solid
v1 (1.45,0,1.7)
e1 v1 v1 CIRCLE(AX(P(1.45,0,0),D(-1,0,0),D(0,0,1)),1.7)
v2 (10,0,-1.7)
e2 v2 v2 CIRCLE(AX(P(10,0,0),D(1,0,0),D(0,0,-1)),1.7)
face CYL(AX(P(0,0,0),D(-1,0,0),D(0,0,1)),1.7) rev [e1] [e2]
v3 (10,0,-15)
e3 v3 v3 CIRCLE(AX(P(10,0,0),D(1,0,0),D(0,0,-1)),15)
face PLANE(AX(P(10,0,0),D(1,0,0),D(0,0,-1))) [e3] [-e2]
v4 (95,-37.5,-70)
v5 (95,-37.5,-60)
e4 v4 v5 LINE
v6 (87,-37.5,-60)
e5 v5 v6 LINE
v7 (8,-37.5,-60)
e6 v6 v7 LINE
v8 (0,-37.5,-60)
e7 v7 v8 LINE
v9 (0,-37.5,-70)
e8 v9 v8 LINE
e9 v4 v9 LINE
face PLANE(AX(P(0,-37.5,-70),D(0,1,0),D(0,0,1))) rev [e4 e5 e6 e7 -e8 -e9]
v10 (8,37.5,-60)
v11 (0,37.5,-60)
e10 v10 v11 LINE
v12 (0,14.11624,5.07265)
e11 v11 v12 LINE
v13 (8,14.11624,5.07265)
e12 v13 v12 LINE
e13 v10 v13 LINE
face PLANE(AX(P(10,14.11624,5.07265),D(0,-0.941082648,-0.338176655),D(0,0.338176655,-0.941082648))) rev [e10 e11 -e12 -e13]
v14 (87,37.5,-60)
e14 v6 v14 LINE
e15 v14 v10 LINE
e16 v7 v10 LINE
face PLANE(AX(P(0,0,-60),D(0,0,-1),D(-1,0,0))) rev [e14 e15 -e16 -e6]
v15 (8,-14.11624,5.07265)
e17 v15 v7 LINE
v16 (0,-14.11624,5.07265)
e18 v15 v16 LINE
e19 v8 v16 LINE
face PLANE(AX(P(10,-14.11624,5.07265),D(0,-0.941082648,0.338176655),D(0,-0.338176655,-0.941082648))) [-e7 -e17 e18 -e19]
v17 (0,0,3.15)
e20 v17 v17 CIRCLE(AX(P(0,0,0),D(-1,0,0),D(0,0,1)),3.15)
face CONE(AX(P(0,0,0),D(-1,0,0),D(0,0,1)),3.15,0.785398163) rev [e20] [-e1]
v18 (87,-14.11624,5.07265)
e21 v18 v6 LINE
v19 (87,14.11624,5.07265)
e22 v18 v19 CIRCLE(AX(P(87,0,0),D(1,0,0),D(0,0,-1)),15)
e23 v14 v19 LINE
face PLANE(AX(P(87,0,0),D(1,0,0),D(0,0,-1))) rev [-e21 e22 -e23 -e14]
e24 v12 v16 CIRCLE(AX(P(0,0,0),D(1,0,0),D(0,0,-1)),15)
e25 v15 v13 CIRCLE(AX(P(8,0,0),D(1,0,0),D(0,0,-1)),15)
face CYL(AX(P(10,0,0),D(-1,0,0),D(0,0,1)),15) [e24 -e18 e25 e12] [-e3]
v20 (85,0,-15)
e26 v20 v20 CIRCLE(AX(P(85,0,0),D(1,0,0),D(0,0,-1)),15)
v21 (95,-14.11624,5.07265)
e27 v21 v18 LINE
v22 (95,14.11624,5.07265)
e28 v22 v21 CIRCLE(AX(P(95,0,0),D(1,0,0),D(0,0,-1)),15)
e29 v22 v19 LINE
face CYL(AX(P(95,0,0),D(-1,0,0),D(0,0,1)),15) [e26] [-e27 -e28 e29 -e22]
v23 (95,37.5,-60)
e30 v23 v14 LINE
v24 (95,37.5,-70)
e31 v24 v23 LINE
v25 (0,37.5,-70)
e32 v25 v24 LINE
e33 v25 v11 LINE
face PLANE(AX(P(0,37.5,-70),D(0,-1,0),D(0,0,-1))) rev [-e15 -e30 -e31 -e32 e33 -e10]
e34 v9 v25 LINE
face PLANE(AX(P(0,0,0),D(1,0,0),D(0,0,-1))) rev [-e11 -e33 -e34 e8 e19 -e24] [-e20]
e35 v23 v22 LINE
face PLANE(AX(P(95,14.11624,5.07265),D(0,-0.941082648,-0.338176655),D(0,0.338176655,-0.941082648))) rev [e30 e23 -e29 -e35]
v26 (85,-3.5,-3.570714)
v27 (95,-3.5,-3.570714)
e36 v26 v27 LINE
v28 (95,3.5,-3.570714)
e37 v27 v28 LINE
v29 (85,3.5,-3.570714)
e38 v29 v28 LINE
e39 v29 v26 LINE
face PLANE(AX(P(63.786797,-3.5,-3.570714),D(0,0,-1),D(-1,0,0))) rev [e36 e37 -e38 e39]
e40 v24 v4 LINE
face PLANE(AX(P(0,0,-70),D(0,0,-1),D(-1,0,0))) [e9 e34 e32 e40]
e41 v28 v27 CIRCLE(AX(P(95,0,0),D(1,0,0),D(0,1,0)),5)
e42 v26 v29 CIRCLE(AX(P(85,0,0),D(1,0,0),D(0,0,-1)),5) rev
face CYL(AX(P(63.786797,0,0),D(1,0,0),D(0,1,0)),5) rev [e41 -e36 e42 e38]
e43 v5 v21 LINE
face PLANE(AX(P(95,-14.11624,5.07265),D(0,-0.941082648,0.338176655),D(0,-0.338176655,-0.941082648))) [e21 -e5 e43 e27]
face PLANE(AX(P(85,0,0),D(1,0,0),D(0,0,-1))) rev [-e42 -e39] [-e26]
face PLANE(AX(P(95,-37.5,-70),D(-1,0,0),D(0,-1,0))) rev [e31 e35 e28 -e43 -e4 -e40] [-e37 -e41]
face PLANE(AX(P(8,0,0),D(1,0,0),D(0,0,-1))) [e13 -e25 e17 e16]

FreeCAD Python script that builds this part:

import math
import FreeCAD as App
import Part
import Sketcher

V = App.Vector


def add_polygon(sketch, points):
    """Adds a closed chain of lines whose ends are joined by coincident constraints."""
    first, n = sketch.GeometryCount, len(points)
    for a, b in zip(points, points[1:] + points[:1]):
        sketch.addGeometry(Part.LineSegment(App.Vector(*a, 0), App.Vector(*b, 0)), False)
    for i in range(n):
        sketch.addConstraint(Sketcher.Constraint("Coincident", first + i, 2, first + (i + 1) % n, 1))

doc = App.newDocument("Part")
body = doc.addObject("PartDesign::Body", "Body")

# Sketch on YZ plane
sketch1 = doc.addObject("Sketcher::SketchObject", "Sketch")
body.addObject(sketch1)
sketch1.AttachmentSupport = (doc.YZ_Plane, [""])
sketch1.MapMode = "FlatFace"
sketch1.addGeometry([
    Part.LineSegment(V(-14, 5, 0), V(-38, -60, 0)),  # 0
    Part.LineSegment(V(-38, -60, 0), V(38, -60, 0)),  # 1
    Part.LineSegment(V(38, -60, 0), V(14, 5, 0)),  # 2
    Part.ArcOfCircle(Part.Circle(V(0, 0, 0), V(0, 0, 1), 15), math.radians(20), math.radians(160)),  # 3
    Part.Circle(V(0, 0, 0), V(0, 0, 1), 8),  # 4
], False)
sketch1.addConstraint([
    Sketcher.Constraint("Coincident", 0, 2, 1, 1),
    Sketcher.Constraint("Coincident", 1, 2, 2, 1),
    Sketcher.Constraint("Tangent", 2, 2, 3, 1),
    Sketcher.Constraint("Tangent", 3, 2, 0, 1),
    Sketcher.Constraint("Horizontal", 1),
    Sketcher.Constraint("Coincident", 3, 3, -1, 1),
    Sketcher.Constraint("Coincident", 4, 3, -1, 1),
    Sketcher.Constraint("Horizontal", 2, 2, 3, 2),
    Sketcher.Constraint("Diameter", 4, 15.0),
    Sketcher.Constraint("Radius", 3, 15.0),
    Sketcher.Constraint("DistanceX", 1, 1, 1, 2, 75.0),
    Sketcher.Constraint("DistanceY", 0, 2, -1, 1, 60.0),
])
pad1 = doc.addObject("PartDesign::Pad", "Pad")
body.addObject(pad1)
pad1.Profile = sketch1
pad1.Length = 10

# Sketch on XY plane
sketch2 = doc.addObject("Sketcher::SketchObject", "Sketch001")
body.addObject(sketch2)
sketch2.AttachmentSupport = (doc.XY_Plane, [""])
sketch2.MapMode = "FlatFace"
sketch2.AttachmentOffset = App.Placement(V(0, 0, -60), App.Rotation())
add_polygon(sketch2, [(0, -38), (0, 38), (95, 38), (95, -38)])  # lines 0-3
sketch2.addConstraint([
    Sketcher.Constraint("Vertical", 0),
    Sketcher.Constraint("Horizontal", 1),
    Sketcher.Constraint("Vertical", 2),
    Sketcher.Constraint("Horizontal", 3),
    Sketcher.Constraint("Symmetric", 0, 2, 3, 2, -1, 1),
    Sketcher.Constraint("DistanceX", 1, 1, 1, 2, 95.0),
    Sketcher.Constraint("DistanceY", 0, 1, 0, 2, 75.0),
])
pad2 = doc.addObject("PartDesign::Pad", "Pad001")
body.addObject(pad2)
pad2.Profile = sketch2
pad2.Length = 10
pad2.Reversed = True
doc.recompute()

linearpattern = doc.addObject("PartDesign::LinearPattern", "LinearPattern")
body.addObject(linearpattern)
linearpattern.Originals = [pad1]
linearpattern.Direction = (doc.X_Axis, [""])
linearpattern.Mode = "offset"
linearpattern.Offset = 85
linearpattern.Occurrences = 2
body.Tip = linearpattern

# Sketch on YZ plane
sketch3 = doc.addObject("Sketcher::SketchObject", "Sketch002")
body.addObject(sketch3)
sketch3.AttachmentSupport = (doc.YZ_Plane, [""])
sketch3.MapMode = "FlatFace"
sketch3.AttachmentOffset = App.Placement(V(0, 0, 10), App.Rotation())
sketch3.addGeometry([
    Part.LineSegment(V(-38, -60, 0), V(38, -60, 0)),  # 0
    Part.LineSegment(V(38, -60, 0), V(14, 5, 0)),  # 1
    Part.ArcOfCircle(Part.Circle(V(0, 0, 0), V(0, 0, 1), 15), math.radians(0), math.radians(19.77)),  # 2
    Part.ArcOfCircle(Part.Circle(V(0, 0, 0), V(0, 0, 1), 15), math.radians(160), math.radians(360)),  # 3
    Part.LineSegment(V(-14, 5, 0), V(-38, -60, 0)),  # 4
], False)
sketch3.addConstraint([
    Sketcher.Constraint("Coincident", 0, 2, 1, 1),
    Sketcher.Constraint("Tangent", 1, 2, 2, 2),
    Sketcher.Constraint("Tangent", 2, 1, 3, 2),
    Sketcher.Constraint("Tangent", 3, 1, 4, 1),
    Sketcher.Constraint("Coincident", 4, 2, 0, 1),
    Sketcher.Constraint("Horizontal", 0),
    Sketcher.Constraint("Coincident", 2, 3, -1, 1),
    Sketcher.Constraint("Equal", 2, 3),
    Sketcher.Constraint("PointOnObject", 2, 1, -1),
    Sketcher.Constraint("Horizontal", 1, 2, 3, 1),
    Sketcher.Constraint("Radius", 2, 15.0),
    Sketcher.Constraint("DistanceX", 0, 1, 0, 2, 75.0),
    Sketcher.Constraint("DistanceY", 0, 2, -1, 1, 60.0),
])
pocket1 = doc.addObject("PartDesign::Pocket", "Pocket")
body.addObject(pocket1)
pocket1.Profile = sketch3
pocket1.Type = "TwoLengths"
pocket1.Length = 77
pocket1.Length2 = 2
pocket1.Reversed = True

# Sketch on YZ plane
sketch4 = doc.addObject("Sketcher::SketchObject", "Sketch003")
body.addObject(sketch4)
sketch4.AttachmentSupport = (doc.YZ_Plane, [""])
sketch4.MapMode = "FlatFace"
sketch4.addGeometry([
    Part.Circle(V(0, 0, 0), V(0, 0, 1), 7.5),
    Part.Circle(V(0, 0, 0), V(0, 0, 1), 1),
], False)
sketch4.addConstraint([
    Sketcher.Constraint("Coincident", 0, 3, -1, 1),
    Sketcher.Constraint("Coincident", 1, 3, -1, 1),
    Sketcher.Constraint("Diameter", 0, 15.0),
    Sketcher.Constraint("Diameter", 1, 2.0),
])
pad3 = doc.addObject("PartDesign::Pad", "Pad002")
body.addObject(pad3)
pad3.Profile = sketch4
pad3.Length = 10

# Sketch on YZ plane
sketch5 = doc.addObject("Sketcher::SketchObject", "Sketch004")
body.addObject(sketch5)
sketch5.AttachmentSupport = (doc.YZ_Plane, [""])
sketch5.MapMode = "FlatFace"
sketch5.addGeometry(Part.Circle(V(0, 0, 0), V(0, 0, 1), 1.7), False)
sketch5.addConstraint([
    Sketcher.Constraint("Coincident", 0, 3, -1, 1),
    Sketcher.Constraint("Diameter", 0, 3.4),
])
doc.recompute()
hole = doc.addObject("PartDesign::Hole", "Hole")
body.addObject(hole)
hole.Profile = sketch5
hole.ThreadType = "None"
hole.Diameter = 3.4
hole.DepthType = "Dimension"
hole.Depth = 95
hole.DrillPoint = "Flat"
hole.HoleCutType = "Countersink"
hole.HoleCutDiameter = 6.3
hole.HoleCutCountersinkAngle = 90
hole.Reversed = True

# Sketch on YZ plane
sketch6 = doc.addObject("Sketcher::SketchObject", "Sketch005")
body.addObject(sketch6)
sketch6.AttachmentSupport = (doc.YZ_Plane, [""])
sketch6.MapMode = "FlatFace"
sketch6.AttachmentOffset = App.Placement(V(0, 0, 85), App.Rotation())
sketch6.addGeometry([
    Part.Circle(V(0, 0, 0), V(0, 0, 1), 8),
    Part.LineSegment(V(4, -4, 0), V(-4, -4, 0)),
    Part.ArcOfCircle(Part.Circle(V(0, 0, 0), V(0, 0, 1), 5), math.radians(-46), math.radians(226)),
], False)
sketch6.addConstraint([
    Sketcher.Constraint("Coincident", 1, 1, 2, 1),
    Sketcher.Constraint("Coincident", 2, 2, 1, 2),
    Sketcher.Constraint("Horizontal", 1),
    Sketcher.Constraint("Coincident", 0, 3, -1, 1),
    Sketcher.Constraint("Coincident", 2, 3, -1, 1),
    Sketcher.Constraint("Diameter", 0, 15.0),
    Sketcher.Constraint("Radius", 2, 5.0),
    Sketcher.Constraint("DistanceX", 1, 2, 1, 1, 7.0),
])
pad4 = doc.addObject("PartDesign::Pad", "Pad003")
body.addObject(pad4)
pad4.Profile = sketch6
pad4.Length = 10

doc.recompute()
